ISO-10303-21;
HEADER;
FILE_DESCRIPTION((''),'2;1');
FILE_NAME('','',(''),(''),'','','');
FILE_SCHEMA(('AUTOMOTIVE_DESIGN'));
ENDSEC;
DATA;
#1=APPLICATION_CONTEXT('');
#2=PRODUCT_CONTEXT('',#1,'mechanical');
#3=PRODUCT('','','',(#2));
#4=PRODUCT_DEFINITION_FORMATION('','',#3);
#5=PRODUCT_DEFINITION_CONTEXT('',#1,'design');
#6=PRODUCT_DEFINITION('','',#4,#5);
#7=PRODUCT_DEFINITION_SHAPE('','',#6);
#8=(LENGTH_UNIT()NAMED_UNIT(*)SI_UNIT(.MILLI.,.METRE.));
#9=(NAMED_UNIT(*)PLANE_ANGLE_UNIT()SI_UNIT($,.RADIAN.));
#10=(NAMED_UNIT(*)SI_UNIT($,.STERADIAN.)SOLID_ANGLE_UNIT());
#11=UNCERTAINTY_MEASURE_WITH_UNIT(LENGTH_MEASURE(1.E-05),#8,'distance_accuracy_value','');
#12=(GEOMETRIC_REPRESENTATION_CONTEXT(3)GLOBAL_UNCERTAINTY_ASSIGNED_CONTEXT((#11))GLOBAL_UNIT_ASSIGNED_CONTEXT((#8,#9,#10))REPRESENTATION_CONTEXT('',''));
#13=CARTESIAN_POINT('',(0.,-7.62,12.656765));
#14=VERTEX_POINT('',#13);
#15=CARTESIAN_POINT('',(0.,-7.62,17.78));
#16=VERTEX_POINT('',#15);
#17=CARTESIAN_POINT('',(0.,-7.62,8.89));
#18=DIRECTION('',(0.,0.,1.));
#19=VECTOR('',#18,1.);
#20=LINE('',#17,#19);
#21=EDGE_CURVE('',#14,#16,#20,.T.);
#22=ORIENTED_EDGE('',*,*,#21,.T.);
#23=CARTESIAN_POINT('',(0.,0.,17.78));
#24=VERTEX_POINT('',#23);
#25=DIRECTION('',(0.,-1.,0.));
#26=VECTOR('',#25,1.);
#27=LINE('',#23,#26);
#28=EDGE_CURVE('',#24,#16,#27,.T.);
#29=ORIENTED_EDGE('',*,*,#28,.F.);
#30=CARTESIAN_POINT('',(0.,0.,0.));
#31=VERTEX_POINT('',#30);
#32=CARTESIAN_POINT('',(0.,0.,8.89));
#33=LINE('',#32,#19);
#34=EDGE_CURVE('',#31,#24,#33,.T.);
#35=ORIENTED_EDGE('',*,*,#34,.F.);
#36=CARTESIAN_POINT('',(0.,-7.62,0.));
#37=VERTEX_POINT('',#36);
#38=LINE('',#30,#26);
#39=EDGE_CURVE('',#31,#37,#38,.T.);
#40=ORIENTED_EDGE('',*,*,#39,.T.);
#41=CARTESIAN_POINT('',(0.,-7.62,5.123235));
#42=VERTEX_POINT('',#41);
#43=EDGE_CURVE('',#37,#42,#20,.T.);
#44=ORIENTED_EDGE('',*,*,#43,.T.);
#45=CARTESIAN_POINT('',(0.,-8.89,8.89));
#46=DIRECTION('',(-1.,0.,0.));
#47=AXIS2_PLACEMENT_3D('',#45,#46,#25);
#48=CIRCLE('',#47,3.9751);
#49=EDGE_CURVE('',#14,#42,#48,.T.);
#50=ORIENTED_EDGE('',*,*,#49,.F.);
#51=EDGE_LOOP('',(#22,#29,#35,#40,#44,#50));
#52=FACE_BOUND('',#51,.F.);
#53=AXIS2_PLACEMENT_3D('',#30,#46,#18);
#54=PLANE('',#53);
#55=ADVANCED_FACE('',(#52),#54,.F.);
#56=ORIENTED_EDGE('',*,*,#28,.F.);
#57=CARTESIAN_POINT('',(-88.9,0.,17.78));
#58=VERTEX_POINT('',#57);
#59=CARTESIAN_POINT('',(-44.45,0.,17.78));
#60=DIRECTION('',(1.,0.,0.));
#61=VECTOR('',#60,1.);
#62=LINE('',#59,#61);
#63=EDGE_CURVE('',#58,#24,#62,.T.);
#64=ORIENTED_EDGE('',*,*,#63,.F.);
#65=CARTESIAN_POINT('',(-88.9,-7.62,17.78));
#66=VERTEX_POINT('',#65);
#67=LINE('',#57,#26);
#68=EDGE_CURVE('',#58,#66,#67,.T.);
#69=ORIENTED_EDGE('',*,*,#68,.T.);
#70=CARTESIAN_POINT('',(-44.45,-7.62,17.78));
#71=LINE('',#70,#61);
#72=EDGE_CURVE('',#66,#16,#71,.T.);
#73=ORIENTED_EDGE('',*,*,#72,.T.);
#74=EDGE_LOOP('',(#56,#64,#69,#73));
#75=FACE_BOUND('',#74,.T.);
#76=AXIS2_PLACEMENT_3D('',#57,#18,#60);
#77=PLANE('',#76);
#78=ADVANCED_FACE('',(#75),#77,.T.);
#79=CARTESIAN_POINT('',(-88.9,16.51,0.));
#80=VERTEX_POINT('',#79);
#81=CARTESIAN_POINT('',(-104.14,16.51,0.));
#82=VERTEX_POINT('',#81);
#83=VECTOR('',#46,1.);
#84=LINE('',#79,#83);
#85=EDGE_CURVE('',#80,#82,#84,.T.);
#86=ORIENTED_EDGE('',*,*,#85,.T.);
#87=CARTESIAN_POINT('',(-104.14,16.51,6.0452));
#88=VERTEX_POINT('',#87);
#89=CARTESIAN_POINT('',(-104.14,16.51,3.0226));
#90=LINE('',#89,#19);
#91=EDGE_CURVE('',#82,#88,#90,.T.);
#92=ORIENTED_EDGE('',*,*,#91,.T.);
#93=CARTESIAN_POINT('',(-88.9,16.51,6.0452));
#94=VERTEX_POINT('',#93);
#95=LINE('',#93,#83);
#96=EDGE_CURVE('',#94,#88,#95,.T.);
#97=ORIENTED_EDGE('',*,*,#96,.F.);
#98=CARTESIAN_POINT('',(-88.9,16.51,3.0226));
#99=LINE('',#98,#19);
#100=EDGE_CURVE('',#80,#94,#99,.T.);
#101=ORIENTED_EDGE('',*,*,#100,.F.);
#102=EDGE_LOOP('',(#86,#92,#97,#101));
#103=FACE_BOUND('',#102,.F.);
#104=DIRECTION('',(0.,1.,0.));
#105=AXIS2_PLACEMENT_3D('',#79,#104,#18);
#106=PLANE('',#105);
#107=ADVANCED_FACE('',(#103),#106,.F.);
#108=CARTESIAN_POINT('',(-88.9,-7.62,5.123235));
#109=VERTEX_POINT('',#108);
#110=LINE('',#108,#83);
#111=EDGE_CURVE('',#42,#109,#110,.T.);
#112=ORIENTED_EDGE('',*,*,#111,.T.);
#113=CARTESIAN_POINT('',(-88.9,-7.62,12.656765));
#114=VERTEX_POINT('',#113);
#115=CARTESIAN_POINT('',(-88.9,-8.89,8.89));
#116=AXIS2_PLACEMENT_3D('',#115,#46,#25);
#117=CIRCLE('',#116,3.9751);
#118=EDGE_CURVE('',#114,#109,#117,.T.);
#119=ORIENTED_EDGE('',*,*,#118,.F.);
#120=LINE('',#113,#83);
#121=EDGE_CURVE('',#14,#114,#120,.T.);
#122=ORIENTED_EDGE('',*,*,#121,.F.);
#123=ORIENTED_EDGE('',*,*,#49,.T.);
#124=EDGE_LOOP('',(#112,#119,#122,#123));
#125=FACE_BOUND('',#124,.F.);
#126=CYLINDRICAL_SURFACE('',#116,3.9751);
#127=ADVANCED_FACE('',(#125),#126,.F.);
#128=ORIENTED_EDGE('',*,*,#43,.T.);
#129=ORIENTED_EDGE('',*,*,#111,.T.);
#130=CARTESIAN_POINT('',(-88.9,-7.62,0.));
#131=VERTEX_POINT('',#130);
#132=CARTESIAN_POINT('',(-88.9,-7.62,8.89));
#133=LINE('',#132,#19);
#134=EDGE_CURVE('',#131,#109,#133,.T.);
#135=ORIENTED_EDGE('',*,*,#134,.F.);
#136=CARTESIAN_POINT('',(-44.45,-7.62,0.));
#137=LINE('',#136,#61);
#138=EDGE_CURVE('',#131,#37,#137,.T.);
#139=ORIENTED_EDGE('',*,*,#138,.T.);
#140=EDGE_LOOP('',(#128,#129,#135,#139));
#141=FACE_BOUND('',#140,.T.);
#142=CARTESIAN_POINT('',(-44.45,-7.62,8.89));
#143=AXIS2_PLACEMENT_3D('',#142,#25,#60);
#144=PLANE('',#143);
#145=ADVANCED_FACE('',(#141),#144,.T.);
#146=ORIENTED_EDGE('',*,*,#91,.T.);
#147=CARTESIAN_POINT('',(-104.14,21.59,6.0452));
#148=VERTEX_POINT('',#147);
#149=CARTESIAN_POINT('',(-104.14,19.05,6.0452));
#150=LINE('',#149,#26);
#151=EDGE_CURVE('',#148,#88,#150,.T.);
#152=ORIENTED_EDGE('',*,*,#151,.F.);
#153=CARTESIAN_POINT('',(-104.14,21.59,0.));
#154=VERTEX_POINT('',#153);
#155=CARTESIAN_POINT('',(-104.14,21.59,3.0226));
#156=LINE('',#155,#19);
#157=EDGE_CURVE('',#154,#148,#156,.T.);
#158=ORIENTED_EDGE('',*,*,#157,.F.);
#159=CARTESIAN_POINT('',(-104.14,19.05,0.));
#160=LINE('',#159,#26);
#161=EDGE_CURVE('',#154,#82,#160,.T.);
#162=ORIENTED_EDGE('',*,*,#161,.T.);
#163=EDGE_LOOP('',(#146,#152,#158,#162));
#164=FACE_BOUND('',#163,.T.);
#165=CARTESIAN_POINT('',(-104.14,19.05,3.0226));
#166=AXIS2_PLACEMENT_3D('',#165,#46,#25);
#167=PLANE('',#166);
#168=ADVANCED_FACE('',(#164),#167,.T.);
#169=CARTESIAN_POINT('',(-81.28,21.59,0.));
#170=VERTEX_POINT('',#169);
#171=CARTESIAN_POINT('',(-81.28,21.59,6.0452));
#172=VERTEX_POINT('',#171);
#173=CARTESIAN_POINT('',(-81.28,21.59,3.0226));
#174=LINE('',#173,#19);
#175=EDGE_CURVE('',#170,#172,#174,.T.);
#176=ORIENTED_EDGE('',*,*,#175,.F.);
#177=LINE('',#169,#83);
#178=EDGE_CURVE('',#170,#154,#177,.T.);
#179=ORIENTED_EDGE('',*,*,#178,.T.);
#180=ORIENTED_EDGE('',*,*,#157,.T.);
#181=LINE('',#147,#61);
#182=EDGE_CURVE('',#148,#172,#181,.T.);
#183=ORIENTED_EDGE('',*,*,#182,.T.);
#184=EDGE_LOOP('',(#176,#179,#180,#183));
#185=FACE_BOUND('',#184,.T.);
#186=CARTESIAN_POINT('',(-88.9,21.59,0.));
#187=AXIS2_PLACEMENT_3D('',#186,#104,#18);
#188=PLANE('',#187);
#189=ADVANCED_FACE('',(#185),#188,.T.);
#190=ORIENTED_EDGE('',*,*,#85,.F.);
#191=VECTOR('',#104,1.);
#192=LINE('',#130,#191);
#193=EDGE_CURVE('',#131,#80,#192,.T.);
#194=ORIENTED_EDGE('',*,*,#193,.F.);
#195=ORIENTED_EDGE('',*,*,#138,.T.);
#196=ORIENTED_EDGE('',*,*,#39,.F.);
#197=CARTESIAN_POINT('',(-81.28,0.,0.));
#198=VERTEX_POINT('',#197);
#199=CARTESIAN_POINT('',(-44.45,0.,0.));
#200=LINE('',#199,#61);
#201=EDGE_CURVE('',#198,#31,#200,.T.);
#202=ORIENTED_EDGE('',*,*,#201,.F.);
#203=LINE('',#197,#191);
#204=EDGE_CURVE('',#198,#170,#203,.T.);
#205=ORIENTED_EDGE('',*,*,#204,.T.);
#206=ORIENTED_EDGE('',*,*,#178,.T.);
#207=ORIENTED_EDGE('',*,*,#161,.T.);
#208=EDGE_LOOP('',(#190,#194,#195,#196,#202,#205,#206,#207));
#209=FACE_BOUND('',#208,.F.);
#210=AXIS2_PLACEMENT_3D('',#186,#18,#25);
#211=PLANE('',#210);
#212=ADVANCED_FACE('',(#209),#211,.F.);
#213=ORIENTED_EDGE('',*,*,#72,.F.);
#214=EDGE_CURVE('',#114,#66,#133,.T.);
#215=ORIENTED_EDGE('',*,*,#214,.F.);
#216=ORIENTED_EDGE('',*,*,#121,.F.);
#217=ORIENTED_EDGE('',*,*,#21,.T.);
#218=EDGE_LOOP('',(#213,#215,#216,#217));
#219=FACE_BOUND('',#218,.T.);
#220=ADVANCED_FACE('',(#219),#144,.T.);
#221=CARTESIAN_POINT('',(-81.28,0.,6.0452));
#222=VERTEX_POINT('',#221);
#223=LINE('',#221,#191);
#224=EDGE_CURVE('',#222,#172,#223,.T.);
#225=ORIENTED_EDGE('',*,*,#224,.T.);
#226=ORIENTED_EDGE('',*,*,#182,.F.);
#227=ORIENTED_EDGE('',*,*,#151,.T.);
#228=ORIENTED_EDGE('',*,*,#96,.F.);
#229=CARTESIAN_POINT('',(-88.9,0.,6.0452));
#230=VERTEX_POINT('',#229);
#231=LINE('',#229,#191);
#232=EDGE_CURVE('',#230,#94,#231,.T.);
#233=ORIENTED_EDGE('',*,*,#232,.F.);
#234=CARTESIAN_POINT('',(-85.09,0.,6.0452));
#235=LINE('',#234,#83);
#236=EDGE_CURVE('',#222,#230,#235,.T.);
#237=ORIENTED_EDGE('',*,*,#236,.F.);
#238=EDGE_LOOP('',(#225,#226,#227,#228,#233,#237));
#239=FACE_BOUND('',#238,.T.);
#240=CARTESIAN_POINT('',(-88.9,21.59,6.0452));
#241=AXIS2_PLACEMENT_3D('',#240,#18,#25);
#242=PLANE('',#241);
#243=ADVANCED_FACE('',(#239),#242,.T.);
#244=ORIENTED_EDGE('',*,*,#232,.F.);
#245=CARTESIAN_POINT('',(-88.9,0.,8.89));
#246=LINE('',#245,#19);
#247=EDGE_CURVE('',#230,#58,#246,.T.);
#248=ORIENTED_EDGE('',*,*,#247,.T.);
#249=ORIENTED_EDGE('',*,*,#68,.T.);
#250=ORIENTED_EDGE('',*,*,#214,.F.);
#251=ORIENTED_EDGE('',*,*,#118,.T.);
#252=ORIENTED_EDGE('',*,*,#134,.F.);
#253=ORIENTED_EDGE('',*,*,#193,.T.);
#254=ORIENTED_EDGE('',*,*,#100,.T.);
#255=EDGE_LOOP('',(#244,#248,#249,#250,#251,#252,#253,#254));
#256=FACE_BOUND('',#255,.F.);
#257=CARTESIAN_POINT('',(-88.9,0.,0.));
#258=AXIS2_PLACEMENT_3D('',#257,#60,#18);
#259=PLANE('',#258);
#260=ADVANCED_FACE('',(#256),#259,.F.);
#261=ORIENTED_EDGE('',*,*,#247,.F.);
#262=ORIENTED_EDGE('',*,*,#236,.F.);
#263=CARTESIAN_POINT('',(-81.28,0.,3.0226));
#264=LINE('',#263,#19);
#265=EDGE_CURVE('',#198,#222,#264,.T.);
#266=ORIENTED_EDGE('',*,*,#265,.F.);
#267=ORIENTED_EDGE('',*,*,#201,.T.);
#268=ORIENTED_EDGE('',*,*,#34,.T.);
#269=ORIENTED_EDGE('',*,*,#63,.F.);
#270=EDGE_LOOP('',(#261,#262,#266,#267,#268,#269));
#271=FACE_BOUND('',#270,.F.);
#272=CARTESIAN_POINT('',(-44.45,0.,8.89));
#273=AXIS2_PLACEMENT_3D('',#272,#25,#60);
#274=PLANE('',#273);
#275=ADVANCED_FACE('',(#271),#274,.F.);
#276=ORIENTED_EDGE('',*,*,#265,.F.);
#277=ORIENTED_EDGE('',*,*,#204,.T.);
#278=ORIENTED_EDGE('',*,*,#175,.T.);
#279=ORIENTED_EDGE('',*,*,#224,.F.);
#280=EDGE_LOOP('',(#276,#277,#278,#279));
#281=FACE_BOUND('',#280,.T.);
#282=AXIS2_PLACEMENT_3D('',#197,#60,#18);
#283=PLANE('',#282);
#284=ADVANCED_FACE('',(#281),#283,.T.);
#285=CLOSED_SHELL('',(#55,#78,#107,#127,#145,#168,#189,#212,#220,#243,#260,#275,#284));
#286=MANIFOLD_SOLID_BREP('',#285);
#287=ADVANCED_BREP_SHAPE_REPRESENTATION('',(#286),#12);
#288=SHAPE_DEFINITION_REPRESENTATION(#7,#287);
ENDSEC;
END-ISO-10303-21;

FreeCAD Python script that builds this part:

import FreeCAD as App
import Part
import Sketcher
Q = App.Units.Quantity

doc = App.newDocument("Part")
body = doc.addObject("PartDesign::Body", "Body")

# Sketch on XZ plane
sketch1 = doc.addObject("Sketcher::SketchObject", "Sketch")
body.addObject(sketch1)
sketch1.AttachmentSupport = (doc.XZ_Plane, [""])
sketch1.MapMode = "FlatFace"
sketch1.addGeometry(Part.LineSegment(App.Vector(-88.9, 17.78, 0), App.Vector(-88.9, 0, 0)), False)
sketch1.addGeometry(Part.LineSegment(App.Vector(-88.9, 0, 0), App.Vector(0, 0, 0)), False)
sketch1.addGeometry(Part.LineSegment(App.Vector(0, 0, 0), App.Vector(0, 17.78, 0)), False)
sketch1.addGeometry(Part.LineSegment(App.Vector(0, 17.78, 0), App.Vector(-88.9, 17.78, 0)), False)
sketch1.addConstraint(Sketcher.Constraint("Coincident", 0, 2, 1, 1))
sketch1.addConstraint(Sketcher.Constraint("Coincident", 1, 2, 2, 1))
sketch1.addConstraint(Sketcher.Constraint("Coincident", 2, 2, 3, 1))
sketch1.addConstraint(Sketcher.Constraint("Coincident", 3, 2, 0, 1))
sketch1.addConstraint(Sketcher.Constraint("Vertical", 0))
sketch1.addConstraint(Sketcher.Constraint("Horizontal", 1))
sketch1.addConstraint(Sketcher.Constraint("Vertical", 2))
sketch1.addConstraint(Sketcher.Constraint("Horizontal", 3))
sketch1.addConstraint(Sketcher.Constraint("Coincident", 1, 2, -1, 1))
sketch1.addConstraint(Sketcher.Constraint("DistanceX", 1, 1, 1, 2, Q("3.5 in")))
sketch1.addConstraint(Sketcher.Constraint("DistanceY", 0, 2, 0, 1, Q("0.7 in")))
pad1 = doc.addObject("PartDesign::Pad", "Pad")
body.addObject(pad1)
pad1.Profile = sketch1
pad1.Length = Q("0.3 in")

# Sketch on YZ plane
sketch2 = doc.addObject("Sketcher::SketchObject", "Sketch001")
body.addObject(sketch2)
sketch2.AttachmentSupport = (doc.YZ_Plane, [""])
sketch2.MapMode = "FlatFace"
sketch2.AttachmentOffset = App.Placement(App.Vector(0, 0, -3.5 * 25.4), App.Rotation())
sketch2.addGeometry(Part.Circle(App.Vector(-8.89, 8.89, 0), App.Vector(0, 0, 1), 3.9751), False)
sketch2.addConstraint(Sketcher.Constraint("Diameter", 0, Q("0.313 in")))
sketch2.addConstraint(Sketcher.Constraint("DistanceX", 0, 3, -1, 1, Q("0.35 in")))
sketch2.addConstraint(Sketcher.Constraint("DistanceY", -1, 1, 0, 3, Q("0.35 in")))
pocket1 = doc.addObject("PartDesign::Pocket", "Pocket")
body.addObject(pocket1)
pocket1.Profile = sketch2
pocket1.Type = "ThroughAll"
pocket1.Reversed = True

# Sketch on XZ plane
sketch3 = doc.addObject("Sketcher::SketchObject", "Sketch002")
body.addObject(sketch3)
sketch3.AttachmentSupport = (doc.XZ_Plane, [""])
sketch3.MapMode = "FlatFace"
sketch3.addGeometry(Part.LineSegment(App.Vector(-81.28, 6.0452, 0), App.Vector(-81.28, 0, 0)), False)
sketch3.addGeometry(Part.LineSegment(App.Vector(-81.28, 0, 0), App.Vector(-88.9, 0, 0)), False)
sketch3.addGeometry(Part.LineSegment(App.Vector(-88.9, 0, 0), App.Vector(-88.9, 6.0452, 0)), False)
sketch3.addGeometry(Part.LineSegment(App.Vector(-88.9, 6.0452, 0), App.Vector(-81.28, 6.0452, 0)), False)
sketch3.addConstraint(Sketcher.Constraint("Coincident", 0, 2, 1, 1))
sketch3.addConstraint(Sketcher.Constraint("Coincident", 1, 2, 2, 1))
sketch3.addConstraint(Sketcher.Constraint("Coincident", 2, 2, 3, 1))
sketch3.addConstraint(Sketcher.Constraint("Coincident", 3, 2, 0, 1))
sketch3.addConstraint(Sketcher.Constraint("Vertical", 0))
sketch3.addConstraint(Sketcher.Constraint("Horizontal", 1))
sketch3.addConstraint(Sketcher.Constraint("Vertical", 2))
sketch3.addConstraint(Sketcher.Constraint("Horizontal", 3))
sketch3.addConstraint(Sketcher.Constraint("PointOnObject", 0, 2, -1))
sketch3.addConstraint(Sketcher.Constraint("DistanceX", 1, 2, 1, 1, Q("0.3 in")))
sketch3.addConstraint(Sketcher.Constraint("DistanceX", 0, 2, -1, 1, Q("3.2 in")))
sketch3.addConstraint(Sketcher.Constraint("DistanceY", 0, 2, 0, 1, Q("0.238 in")))
pad2 = doc.addObject("PartDesign::Pad", "Pad001")
body.addObject(pad2)
pad2.Profile = sketch3
pad2.Length = Q("0.85 in")
pad2.Reversed = True

# Sketch on YZ plane
sketch4 = doc.addObject("Sketcher::SketchObject", "Sketch003")
body.addObject(sketch4)
sketch4.AttachmentSupport = (doc.YZ_Plane, [""])
sketch4.MapMode = "FlatFace"
sketch4.AttachmentOffset = App.Placement(App.Vector(0, 0, -3.5 * 25.4), App.Rotation())
sketch4.addGeometry(Part.LineSegment(App.Vector(21.59, 6.0452, 0), App.Vector(21.59, 0, 0)), False)
sketch4.addGeometry(Part.LineSegment(App.Vector(21.59, 0, 0), App.Vector(16.51, 0, 0)), False)
sketch4.addGeometry(Part.LineSegment(App.Vector(16.51, 0, 0), App.Vector(16.51, 6.0452, 0)), False)
sketch4.addGeometry(Part.LineSegment(App.Vector(16.51, 6.0452, 0), App.Vector(21.59, 6.0452, 0)), False)
sketch4.addConstraint(Sketcher.Constraint("Coincident", 0, 2, 1, 1))
sketch4.addConstraint(Sketcher.Constraint("Coincident", 1, 2, 2, 1))
sketch4.addConstraint(Sketcher.Constraint("Coincident", 2, 2, 3, 1))
sketch4.addConstraint(Sketcher.Constraint("Coincident", 3, 2, 0, 1))
sketch4.addConstraint(Sketcher.Constraint("Vertical", 0))
sketch4.addConstraint(Sketcher.Constraint("Horizontal", 1))
sketch4.addConstraint(Sketcher.Constraint("Vertical", 2))
sketch4.addConstraint(Sketcher.Constraint("Horizontal", 3))
sketch4.addConstraint(Sketcher.Constraint("PointOnObject", 0, 2, -1))
sketch4.addConstraint(Sketcher.Constraint("DistanceX", 1, 2, 1, 1, Q("0.2 in")))
sketch4.addConstraint(Sketcher.Constraint("DistanceY", 0, 2, 0, 1, Q("0.238 in")))
sketch4.addConstraint(Sketcher.Constraint("DistanceX", -1, 1, 0, 2, Q("0.85 in")))
pad3 = doc.addObject("PartDesign::Pad", "Pad002")
body.addObject(pad3)
pad3.Profile = sketch4
pad3.Length = Q("0.6 in")
pad3.Reversed = True

doc.recompute()
